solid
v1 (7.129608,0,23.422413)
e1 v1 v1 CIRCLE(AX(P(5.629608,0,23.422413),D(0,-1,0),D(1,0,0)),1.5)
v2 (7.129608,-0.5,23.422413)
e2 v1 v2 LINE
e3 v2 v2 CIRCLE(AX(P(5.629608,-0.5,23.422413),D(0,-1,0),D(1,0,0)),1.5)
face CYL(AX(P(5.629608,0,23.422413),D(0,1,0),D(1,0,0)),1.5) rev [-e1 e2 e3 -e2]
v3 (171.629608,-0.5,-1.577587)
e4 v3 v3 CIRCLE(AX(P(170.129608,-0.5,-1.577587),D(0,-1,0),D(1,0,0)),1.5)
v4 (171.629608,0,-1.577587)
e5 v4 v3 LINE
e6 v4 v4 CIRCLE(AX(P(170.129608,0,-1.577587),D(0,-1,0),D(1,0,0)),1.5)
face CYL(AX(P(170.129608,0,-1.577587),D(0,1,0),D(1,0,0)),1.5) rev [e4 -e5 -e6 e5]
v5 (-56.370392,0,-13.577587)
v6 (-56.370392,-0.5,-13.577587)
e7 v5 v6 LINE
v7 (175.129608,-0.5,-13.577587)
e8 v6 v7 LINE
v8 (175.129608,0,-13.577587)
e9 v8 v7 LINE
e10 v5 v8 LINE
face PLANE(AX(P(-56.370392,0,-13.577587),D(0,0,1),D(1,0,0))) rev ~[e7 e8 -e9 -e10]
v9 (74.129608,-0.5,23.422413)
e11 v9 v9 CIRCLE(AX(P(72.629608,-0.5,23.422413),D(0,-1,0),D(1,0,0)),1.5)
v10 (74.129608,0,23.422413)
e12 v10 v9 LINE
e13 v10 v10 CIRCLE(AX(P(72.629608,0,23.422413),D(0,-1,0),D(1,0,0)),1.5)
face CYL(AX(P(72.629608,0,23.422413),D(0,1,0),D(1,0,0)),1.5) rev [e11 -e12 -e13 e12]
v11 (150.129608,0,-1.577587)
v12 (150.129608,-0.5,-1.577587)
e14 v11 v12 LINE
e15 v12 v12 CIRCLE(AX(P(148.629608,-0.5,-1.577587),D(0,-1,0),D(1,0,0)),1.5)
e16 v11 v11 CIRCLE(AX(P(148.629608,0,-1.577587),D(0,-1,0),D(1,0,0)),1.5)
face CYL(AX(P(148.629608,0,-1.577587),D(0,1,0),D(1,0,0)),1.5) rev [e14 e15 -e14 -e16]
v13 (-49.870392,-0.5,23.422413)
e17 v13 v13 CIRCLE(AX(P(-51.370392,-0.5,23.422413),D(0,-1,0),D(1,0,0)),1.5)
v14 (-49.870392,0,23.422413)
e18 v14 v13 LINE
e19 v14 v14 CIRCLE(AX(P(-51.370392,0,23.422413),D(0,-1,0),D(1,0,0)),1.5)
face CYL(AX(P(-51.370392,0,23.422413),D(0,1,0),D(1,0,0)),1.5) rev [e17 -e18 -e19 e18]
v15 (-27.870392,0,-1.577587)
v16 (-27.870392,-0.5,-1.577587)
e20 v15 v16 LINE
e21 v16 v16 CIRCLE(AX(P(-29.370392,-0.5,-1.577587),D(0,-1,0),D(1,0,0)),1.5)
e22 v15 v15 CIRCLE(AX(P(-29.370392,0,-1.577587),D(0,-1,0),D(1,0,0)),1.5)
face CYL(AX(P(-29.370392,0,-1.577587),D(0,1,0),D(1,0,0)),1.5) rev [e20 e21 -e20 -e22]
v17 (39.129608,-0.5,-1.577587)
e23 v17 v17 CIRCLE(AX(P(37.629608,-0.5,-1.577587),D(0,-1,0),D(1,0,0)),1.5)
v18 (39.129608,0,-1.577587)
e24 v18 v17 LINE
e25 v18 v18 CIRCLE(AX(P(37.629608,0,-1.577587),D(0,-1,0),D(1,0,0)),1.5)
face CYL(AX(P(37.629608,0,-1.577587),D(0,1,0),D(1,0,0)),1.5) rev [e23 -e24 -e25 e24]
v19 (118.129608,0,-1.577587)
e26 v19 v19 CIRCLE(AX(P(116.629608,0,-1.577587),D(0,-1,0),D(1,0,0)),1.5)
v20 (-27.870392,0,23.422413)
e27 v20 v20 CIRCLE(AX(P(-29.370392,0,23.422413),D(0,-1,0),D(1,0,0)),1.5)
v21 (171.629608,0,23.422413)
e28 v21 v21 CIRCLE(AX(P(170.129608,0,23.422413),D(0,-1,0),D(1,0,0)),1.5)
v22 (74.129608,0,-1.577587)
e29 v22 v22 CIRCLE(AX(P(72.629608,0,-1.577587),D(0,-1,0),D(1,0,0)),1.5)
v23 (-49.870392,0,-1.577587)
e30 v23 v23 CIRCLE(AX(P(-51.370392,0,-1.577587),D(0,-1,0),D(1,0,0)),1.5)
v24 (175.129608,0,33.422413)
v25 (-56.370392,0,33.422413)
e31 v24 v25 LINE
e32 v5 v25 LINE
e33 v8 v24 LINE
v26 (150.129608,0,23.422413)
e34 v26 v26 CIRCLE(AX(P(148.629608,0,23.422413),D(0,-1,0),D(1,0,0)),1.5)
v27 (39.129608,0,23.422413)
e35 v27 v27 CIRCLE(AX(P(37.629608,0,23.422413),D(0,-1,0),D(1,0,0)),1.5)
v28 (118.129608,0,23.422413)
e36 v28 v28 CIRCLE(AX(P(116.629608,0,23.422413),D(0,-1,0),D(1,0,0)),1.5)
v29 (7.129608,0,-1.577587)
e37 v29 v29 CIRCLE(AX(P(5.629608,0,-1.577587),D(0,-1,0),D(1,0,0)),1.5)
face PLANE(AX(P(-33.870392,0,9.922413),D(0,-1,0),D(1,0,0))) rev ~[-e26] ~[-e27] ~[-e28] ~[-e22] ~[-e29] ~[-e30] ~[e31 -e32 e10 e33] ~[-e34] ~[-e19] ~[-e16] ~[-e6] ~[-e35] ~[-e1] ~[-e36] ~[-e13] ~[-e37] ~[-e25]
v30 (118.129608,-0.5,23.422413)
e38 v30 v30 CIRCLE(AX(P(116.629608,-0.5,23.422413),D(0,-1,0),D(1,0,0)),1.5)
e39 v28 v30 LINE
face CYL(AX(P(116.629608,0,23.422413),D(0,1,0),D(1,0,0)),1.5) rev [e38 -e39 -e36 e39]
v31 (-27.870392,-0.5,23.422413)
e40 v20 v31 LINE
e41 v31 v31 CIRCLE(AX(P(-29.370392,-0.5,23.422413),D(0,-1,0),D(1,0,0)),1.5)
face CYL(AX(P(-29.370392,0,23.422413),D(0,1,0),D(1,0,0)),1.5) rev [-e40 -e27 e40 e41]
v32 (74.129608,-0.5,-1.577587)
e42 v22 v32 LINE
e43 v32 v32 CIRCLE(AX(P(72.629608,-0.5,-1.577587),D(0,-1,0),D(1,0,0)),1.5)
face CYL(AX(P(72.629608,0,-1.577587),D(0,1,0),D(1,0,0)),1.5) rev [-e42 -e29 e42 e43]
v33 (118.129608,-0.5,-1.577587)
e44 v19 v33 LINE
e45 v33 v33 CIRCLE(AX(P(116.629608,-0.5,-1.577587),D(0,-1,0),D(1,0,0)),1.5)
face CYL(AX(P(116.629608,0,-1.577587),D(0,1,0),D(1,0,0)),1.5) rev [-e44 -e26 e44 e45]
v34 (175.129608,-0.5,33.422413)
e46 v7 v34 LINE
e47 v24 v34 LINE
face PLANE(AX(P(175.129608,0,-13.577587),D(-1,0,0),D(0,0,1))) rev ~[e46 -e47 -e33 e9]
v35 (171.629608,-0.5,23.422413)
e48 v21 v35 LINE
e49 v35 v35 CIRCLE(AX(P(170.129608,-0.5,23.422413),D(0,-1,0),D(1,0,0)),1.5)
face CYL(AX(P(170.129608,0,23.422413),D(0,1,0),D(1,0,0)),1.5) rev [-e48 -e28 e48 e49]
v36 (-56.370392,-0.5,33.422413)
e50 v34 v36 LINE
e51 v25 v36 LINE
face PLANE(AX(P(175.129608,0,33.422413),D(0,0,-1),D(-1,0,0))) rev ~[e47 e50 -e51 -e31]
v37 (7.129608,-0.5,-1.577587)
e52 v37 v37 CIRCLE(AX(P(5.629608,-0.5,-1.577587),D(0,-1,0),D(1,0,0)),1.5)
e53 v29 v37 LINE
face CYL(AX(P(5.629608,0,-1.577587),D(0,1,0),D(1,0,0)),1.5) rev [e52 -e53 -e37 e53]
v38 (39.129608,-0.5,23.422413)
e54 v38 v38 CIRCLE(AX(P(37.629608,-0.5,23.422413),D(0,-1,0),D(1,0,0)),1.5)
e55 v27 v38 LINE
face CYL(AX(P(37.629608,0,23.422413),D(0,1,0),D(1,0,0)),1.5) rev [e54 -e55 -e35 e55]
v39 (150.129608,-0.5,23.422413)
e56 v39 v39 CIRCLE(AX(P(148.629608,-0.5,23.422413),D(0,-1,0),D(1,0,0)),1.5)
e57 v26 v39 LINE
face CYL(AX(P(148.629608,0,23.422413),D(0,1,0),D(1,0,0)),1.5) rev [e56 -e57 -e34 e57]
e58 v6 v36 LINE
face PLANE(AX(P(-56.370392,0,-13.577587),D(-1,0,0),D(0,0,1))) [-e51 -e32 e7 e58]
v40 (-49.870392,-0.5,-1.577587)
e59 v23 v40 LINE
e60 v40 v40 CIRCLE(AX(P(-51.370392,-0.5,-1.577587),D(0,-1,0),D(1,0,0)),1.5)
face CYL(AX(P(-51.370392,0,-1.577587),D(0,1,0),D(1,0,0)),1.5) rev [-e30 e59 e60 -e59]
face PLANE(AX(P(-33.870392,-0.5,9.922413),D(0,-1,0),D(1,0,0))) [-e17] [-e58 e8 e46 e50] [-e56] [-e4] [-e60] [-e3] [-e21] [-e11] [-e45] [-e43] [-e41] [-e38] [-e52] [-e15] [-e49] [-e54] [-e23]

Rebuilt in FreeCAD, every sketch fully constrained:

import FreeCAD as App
import Part
import Sketcher

V = App.Vector

doc = App.newDocument("Part")
body = doc.addObject("PartDesign::Body", "Body")

# Sketch on XZ plane
sketch1 = body.newObject("Sketcher::SketchObject", "Sketch")
sketch1.AttachmentSupport = (doc.getObject("XZ_Plane"), [""])
sketch1.MapMode = "FlatFace"
sketch1.addGeometry(Part.LineSegment(V(-56.370392, 33.422413, 0), V(-56.370392, -13.577587, 0)), False)
sketch1.addGeometry(Part.LineSegment(V(-56.370392, -13.577587, 0), V(175.129608, -13.577587, 0)), False)
sketch1.addGeometry(Part.LineSegment(V(175.129608, -13.577587, 0), V(175.129608, 33.422413, 0)), False)
sketch1.addGeometry(Part.LineSegment(V(175.129608, 33.422413, 0), V(-56.370392, 33.422413, 0)), False)
sketch1.addGeometry(Part.Circle(V(-51.370392, -1.577587, 0), V(0, 0, 1), 1.5), False)
sketch1.addGeometry(Part.Circle(V(-29.370392, -1.577587, 0), V(0, 0, 1), 1.5), False)
sketch1.addGeometry(Part.Circle(V(5.629608, -1.577587, 0), V(0, 0, 1), 1.5), False)
sketch1.addGeometry(Part.Circle(V(37.629608, -1.577587, 0), V(0, 0, 1), 1.5), False)
sketch1.addGeometry(Part.Circle(V(72.629608, -1.577587, 0), V(0, 0, 1), 1.5), False)
sketch1.addGeometry(Part.Circle(V(116.629608, -1.577587, 0), V(0, 0, 1), 1.5), False)
sketch1.addGeometry(Part.Circle(V(148.629608, -1.577587, 0), V(0, 0, 1), 1.5), False)
sketch1.addGeometry(Part.Circle(V(170.129608, -1.577587, 0), V(0, 0, 1), 1.5), False)
sketch1.addGeometry(Part.Circle(V(-51.370392, 23.422413, 0), V(0, 0, 1), 1.5), False)
sketch1.addGeometry(Part.Circle(V(-29.370392, 23.422413, 0), V(0, 0, 1), 1.5), False)
sketch1.addGeometry(Part.Circle(V(5.629608, 23.422413, 0), V(0, 0, 1), 1.5), False)
sketch1.addGeometry(Part.Circle(V(37.629608, 23.422413, 0), V(0, 0, 1), 1.5), False)
sketch1.addGeometry(Part.Circle(V(72.629608, 23.422413, 0), V(0, 0, 1), 1.5), False)
sketch1.addGeometry(Part.Circle(V(116.629608, 23.422413, 0), V(0, 0, 1), 1.5), False)
sketch1.addGeometry(Part.Circle(V(148.629608, 23.422413, 0), V(0, 0, 1), 1.5), False)
sketch1.addGeometry(Part.Circle(V(170.129608, 23.422413, 0), V(0, 0, 1), 1.5), False)
sketch1.addConstraint(Sketcher.Constraint("Coincident", 0, 2, 1, 1))
sketch1.addConstraint(Sketcher.Constraint("Coincident", 1, 2, 2, 1))
sketch1.addConstraint(Sketcher.Constraint("Coincident", 2, 2, 3, 1))
sketch1.addConstraint(Sketcher.Constraint("Coincident", 3, 2, 0, 1))
sketch1.addConstraint(Sketcher.Constraint("Vertical", 0))
sketch1.addConstraint(Sketcher.Constraint("Horizontal", 1))
sketch1.addConstraint(Sketcher.Constraint("Vertical", 2))
sketch1.addConstraint(Sketcher.Constraint("Horizontal", 3))
sketch1.addConstraint(Sketcher.Constraint("Equal", 4, 5))
sketch1.addConstraint(Sketcher.Constraint("Equal", 5, 6))
sketch1.addConstraint(Sketcher.Constraint("Equal", 6, 7))
sketch1.addConstraint(Sketcher.Constraint("Equal", 7, 8))
sketch1.addConstraint(Sketcher.Constraint("Equal", 8, 9))
sketch1.addConstraint(Sketcher.Constraint("Equal", 9, 10))
sketch1.addConstraint(Sketcher.Constraint("Equal", 10, 11))
sketch1.addConstraint(Sketcher.Constraint("Equal", 11, 12))
sketch1.addConstraint(Sketcher.Constraint("Equal", 12, 13))
sketch1.addConstraint(Sketcher.Constraint("Equal", 13, 14))
sketch1.addConstraint(Sketcher.Constraint("Equal", 14, 15))
sketch1.addConstraint(Sketcher.Constraint("Equal", 15, 16))
sketch1.addConstraint(Sketcher.Constraint("Equal", 16, 17))
sketch1.addConstraint(Sketcher.Constraint("Equal", 17, 18))
sketch1.addConstraint(Sketcher.Constraint("Equal", 18, 19))
sketch1.addConstraint(Sketcher.Constraint("Horizontal", 4, 3, 5, 3))
sketch1.addConstraint(Sketcher.Constraint("Horizontal", 5, 3, 6, 3))
sketch1.addConstraint(Sketcher.Constraint("Horizontal", 6, 3, 7, 3))
sketch1.addConstraint(Sketcher.Constraint("Horizontal", 7, 3, 8, 3))
sketch1.addConstraint(Sketcher.Constraint("Horizontal", 8, 3, 9, 3))
sketch1.addConstraint(Sketcher.Constraint("Horizontal", 9, 3, 10, 3))
sketch1.addConstraint(Sketcher.Constraint("Horizontal", 10, 3, 11, 3))
sketch1.addConstraint(Sketcher.Constraint("Horizontal", 12, 3, 13, 3))
sketch1.addConstraint(Sketcher.Constraint("Horizontal", 13, 3, 14, 3))
sketch1.addConstraint(Sketcher.Constraint("Horizontal", 14, 3, 15, 3))
sketch1.addConstraint(Sketcher.Constraint("Horizontal", 15, 3, 16, 3))
sketch1.addConstraint(Sketcher.Constraint("Horizontal", 16, 3, 17, 3))
sketch1.addConstraint(Sketcher.Constraint("Horizontal", 17, 3, 18, 3))
sketch1.addConstraint(Sketcher.Constraint("Horizontal", 18, 3, 19, 3))
sketch1.addConstraint(Sketcher.Constraint("Vertical", 4, 3, 12, 3))
sketch1.addConstraint(Sketcher.Constraint("Vertical", 5, 3, 13, 3))
sketch1.addConstraint(Sketcher.Constraint("Vertical", 6, 3, 14, 3))
sketch1.addConstraint(Sketcher.Constraint("Vertical", 7, 3, 15, 3))
sketch1.addConstraint(Sketcher.Constraint("Vertical", 8, 3, 16, 3))
sketch1.addConstraint(Sketcher.Constraint("Vertical", 9, 3, 17, 3))
sketch1.addConstraint(Sketcher.Constraint("Vertical", 10, 3, 18, 3))
sketch1.addConstraint(Sketcher.Constraint("Vertical", 11, 3, 19, 3))
sketch1.addConstraint(Sketcher.Constraint("Diameter", 4, 3.0))
sketch1.addConstraint(Sketcher.Constraint("DistanceY", 0, 2, 0, 1, 47.0))
sketch1.addConstraint(Sketcher.Constraint("DistanceX", 1, 1, 1, 2, 231.5))
sketch1.addConstraint(Sketcher.Constraint("DistanceX", 4, 3, 5, 3, 22.0))
sketch1.addConstraint(Sketcher.Constraint("DistanceX", 5, 3, 6, 3, 35.0))
sketch1.addConstraint(Sketcher.Constraint("DistanceX", 6, 3, 7, 3, 32.0))
sketch1.addConstraint(Sketcher.Constraint("DistanceX", 7, 3, 8, 3, 35.0))
sketch1.addConstraint(Sketcher.Constraint("DistanceX", 8, 3, 9, 3, 44.0))
sketch1.addConstraint(Sketcher.Constraint("DistanceX", 9, 3, 10, 3, 32.0))
sketch1.addConstraint(Sketcher.Constraint("DistanceY", 4, 3, 12, 3, 25.0))
sketch1.addConstraint(Sketcher.Constraint("DistanceX", 0, 2, 4, 3, 5.0))
sketch1.addConstraint(Sketcher.Constraint("DistanceY", 0, 2, 4, 3, 12.0))
sketch1.addConstraint(Sketcher.Constraint("DistanceX", 11, 3, 1, 2, 5.0))
sketch1.addConstraint(Sketcher.Constraint("DistanceX", 5, 3, -1, 1, 29.370392))
sketch1.addConstraint(Sketcher.Constraint("DistanceY", 4, 3, -1, 1, 1.577587))
pad1 = body.newObject("PartDesign::Pad", "Pad")
pad1.Profile = sketch1
pad1.Length = 0.5

doc.recompute()
